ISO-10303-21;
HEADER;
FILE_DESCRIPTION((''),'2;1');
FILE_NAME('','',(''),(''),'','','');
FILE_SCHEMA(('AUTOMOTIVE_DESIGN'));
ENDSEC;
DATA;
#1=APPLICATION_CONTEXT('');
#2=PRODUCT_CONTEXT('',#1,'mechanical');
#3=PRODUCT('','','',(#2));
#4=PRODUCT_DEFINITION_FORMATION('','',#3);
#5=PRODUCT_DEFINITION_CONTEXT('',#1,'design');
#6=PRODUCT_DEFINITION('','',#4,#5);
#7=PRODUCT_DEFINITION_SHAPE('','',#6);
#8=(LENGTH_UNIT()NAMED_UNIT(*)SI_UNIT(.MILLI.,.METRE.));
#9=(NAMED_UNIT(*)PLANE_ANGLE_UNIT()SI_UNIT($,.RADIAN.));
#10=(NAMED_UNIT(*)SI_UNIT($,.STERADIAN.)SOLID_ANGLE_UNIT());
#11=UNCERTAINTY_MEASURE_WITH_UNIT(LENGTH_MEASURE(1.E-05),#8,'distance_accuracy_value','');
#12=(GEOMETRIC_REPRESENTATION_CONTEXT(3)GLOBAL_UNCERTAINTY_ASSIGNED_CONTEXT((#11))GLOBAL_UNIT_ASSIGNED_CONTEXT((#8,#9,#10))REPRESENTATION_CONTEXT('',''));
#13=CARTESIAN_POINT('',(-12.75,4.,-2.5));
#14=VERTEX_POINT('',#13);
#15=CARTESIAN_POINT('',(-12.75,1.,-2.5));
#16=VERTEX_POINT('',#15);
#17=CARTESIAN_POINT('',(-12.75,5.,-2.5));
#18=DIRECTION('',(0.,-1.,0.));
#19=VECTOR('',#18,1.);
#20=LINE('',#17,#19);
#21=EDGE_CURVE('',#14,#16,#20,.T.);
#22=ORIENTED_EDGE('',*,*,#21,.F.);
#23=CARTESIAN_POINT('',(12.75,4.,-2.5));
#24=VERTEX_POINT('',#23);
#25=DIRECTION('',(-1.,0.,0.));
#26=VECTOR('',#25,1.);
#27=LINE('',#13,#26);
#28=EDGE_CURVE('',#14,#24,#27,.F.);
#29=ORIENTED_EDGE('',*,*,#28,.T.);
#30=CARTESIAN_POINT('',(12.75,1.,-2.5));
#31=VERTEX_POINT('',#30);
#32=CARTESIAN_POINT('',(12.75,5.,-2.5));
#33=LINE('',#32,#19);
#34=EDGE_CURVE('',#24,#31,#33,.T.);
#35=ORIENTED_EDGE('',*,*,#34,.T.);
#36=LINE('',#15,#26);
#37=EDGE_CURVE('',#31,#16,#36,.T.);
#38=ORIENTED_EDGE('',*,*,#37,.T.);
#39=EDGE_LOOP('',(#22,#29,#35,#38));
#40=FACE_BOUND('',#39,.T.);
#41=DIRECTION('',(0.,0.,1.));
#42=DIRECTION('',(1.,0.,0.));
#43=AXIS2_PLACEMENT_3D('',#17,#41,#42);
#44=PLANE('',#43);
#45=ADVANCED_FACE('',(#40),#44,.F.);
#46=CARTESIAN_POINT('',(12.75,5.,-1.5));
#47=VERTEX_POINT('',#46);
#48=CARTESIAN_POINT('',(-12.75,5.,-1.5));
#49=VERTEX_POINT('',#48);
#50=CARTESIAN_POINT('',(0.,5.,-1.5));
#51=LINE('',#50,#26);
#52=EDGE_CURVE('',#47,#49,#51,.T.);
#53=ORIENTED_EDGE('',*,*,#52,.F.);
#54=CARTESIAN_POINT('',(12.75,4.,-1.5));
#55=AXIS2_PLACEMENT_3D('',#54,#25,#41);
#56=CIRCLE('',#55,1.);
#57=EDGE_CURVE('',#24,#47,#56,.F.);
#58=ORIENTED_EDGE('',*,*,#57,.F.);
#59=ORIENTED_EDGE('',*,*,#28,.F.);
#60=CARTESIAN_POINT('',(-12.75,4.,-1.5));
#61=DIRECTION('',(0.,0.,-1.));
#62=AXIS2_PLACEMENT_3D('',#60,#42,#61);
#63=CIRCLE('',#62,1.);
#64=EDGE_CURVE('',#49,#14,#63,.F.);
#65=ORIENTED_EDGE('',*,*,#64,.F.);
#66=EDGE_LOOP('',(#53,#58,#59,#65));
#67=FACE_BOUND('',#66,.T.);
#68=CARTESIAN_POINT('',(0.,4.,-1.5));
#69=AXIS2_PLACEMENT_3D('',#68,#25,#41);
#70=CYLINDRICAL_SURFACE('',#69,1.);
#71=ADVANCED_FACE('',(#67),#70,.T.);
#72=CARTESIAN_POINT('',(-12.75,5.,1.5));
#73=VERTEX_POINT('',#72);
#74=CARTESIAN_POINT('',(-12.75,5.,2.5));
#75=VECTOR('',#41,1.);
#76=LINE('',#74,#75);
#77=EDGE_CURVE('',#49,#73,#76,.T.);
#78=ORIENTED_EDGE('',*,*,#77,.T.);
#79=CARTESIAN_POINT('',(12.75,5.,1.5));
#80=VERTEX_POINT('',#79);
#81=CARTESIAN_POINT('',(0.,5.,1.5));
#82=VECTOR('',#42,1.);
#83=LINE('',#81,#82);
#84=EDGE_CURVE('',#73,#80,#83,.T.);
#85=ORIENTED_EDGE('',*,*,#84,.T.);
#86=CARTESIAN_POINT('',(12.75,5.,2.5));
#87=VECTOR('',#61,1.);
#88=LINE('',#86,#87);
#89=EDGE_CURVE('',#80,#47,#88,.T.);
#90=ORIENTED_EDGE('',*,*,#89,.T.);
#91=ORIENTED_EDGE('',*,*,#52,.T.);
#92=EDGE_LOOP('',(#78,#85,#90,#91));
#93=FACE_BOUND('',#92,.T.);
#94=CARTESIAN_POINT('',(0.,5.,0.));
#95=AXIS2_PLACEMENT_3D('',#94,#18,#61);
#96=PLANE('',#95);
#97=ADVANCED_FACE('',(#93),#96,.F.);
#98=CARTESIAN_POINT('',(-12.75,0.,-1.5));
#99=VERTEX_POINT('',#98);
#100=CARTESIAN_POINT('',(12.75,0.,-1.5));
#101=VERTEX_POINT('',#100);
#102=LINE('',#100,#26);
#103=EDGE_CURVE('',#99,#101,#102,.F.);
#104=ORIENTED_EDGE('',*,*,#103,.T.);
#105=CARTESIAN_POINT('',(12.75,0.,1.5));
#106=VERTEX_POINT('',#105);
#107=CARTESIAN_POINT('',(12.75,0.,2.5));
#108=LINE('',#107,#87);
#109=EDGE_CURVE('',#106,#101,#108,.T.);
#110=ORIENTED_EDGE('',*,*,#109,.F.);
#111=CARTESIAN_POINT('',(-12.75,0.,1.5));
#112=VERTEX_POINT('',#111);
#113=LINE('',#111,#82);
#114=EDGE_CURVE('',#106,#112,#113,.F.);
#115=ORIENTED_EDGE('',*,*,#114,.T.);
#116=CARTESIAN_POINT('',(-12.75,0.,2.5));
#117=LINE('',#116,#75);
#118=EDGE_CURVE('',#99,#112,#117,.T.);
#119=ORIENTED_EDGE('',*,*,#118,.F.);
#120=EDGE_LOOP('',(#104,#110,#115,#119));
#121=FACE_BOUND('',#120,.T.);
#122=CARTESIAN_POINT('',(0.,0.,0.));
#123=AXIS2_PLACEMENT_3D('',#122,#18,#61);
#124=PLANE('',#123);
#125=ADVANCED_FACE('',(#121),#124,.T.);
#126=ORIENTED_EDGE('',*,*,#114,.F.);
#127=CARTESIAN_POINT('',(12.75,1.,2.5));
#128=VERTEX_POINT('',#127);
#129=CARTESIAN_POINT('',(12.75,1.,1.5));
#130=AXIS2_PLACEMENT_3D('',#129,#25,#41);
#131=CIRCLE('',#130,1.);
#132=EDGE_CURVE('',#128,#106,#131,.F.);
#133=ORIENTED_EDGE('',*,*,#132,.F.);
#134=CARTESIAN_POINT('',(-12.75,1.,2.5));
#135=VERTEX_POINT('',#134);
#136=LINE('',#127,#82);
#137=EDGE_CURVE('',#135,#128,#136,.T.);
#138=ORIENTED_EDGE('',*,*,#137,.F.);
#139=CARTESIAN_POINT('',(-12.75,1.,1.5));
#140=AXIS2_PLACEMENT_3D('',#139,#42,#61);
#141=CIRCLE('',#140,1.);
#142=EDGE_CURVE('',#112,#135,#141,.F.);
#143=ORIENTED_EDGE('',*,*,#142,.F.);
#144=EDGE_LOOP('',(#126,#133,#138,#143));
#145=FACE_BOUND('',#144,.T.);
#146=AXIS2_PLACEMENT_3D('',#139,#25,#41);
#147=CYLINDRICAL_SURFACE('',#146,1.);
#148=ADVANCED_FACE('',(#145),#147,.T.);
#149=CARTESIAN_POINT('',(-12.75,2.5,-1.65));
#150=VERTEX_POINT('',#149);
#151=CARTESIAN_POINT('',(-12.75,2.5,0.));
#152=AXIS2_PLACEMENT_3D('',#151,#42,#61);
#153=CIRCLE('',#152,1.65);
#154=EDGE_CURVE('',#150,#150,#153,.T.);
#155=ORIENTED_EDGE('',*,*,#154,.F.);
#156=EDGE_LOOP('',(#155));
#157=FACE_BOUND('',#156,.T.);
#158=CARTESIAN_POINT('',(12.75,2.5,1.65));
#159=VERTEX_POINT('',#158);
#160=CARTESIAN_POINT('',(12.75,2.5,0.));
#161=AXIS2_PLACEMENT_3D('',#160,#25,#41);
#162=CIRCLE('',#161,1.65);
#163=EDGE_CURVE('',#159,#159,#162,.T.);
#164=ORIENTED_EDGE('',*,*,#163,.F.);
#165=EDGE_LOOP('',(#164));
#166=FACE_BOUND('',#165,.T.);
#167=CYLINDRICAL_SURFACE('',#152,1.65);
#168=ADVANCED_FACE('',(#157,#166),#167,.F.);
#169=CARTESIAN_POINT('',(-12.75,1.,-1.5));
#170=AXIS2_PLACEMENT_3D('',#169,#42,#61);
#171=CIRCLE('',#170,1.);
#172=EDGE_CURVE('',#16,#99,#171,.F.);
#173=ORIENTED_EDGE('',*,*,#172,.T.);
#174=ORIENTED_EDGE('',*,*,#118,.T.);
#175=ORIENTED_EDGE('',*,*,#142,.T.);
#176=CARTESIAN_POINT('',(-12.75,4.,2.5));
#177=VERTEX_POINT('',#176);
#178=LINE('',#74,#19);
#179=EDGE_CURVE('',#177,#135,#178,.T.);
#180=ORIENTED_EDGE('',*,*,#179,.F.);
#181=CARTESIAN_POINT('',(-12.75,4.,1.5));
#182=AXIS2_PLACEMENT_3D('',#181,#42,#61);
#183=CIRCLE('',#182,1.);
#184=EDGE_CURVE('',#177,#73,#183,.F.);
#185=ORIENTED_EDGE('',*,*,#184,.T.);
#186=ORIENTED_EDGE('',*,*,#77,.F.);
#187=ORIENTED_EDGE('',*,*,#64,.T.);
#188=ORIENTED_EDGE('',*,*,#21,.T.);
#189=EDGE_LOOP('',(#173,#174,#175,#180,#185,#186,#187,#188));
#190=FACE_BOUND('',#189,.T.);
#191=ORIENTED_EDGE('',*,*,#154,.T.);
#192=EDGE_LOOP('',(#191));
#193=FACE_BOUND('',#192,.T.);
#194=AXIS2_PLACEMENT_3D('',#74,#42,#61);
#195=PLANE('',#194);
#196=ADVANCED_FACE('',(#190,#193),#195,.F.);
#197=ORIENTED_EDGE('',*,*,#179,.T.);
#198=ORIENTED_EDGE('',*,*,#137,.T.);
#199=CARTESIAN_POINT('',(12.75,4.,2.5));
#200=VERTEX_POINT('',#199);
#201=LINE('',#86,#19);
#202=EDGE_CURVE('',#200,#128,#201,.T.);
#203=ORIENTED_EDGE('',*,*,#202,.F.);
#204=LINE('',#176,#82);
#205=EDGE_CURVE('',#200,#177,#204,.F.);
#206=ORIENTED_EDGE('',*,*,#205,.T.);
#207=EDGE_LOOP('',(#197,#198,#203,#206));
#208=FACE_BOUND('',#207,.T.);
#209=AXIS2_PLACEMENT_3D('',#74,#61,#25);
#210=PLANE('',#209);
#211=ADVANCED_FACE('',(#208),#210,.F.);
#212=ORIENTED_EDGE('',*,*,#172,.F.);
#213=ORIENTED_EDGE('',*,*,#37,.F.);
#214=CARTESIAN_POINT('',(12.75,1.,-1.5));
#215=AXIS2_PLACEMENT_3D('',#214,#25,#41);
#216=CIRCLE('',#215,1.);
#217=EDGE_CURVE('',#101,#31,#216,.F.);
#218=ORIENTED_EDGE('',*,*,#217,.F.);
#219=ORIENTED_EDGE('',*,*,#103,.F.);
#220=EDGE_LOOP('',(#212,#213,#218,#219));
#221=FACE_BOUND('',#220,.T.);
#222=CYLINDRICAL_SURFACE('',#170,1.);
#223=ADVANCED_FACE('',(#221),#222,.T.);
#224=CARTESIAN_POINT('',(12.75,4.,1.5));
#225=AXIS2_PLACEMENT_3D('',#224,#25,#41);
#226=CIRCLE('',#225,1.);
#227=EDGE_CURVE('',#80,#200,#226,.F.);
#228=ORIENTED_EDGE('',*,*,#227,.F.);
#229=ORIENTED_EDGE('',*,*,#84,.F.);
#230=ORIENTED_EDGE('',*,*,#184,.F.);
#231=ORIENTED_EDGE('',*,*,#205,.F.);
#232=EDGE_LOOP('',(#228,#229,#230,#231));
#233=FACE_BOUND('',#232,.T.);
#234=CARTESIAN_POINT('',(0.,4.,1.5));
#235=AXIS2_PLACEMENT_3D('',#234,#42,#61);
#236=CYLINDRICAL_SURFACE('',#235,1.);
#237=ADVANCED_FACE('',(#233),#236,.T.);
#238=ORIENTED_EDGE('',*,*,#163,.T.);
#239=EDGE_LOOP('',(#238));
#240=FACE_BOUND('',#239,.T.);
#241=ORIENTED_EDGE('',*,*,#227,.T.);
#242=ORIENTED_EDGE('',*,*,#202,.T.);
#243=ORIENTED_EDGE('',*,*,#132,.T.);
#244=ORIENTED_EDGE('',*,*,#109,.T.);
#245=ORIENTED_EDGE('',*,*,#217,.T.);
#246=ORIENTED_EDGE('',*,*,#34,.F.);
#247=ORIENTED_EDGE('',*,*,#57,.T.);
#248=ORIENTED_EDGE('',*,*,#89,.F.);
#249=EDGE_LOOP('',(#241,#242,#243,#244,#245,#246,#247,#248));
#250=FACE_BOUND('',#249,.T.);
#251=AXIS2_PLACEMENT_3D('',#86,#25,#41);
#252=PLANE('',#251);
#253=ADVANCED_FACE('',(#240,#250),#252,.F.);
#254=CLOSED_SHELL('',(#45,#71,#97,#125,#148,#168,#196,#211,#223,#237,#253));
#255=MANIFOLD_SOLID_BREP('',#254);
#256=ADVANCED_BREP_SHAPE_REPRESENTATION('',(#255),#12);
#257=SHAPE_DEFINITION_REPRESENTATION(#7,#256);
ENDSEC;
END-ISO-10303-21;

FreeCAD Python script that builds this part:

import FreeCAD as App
import Part
import Sketcher
from FreeCAD import Vector
Q = App.Units.Quantity


def edges_at(feature, points):
    """Names of the edges that pass closest to the given points."""
    edges = feature.Shape.Edges
    near = lambda p: min(range(len(edges)), key=lambda i: edges[i].distToShape(Part.Vertex(*p))[0])
    return sorted({f"Edge{near(p) + 1}" for p in points})

doc = App.newDocument("Part")
params = doc.addObject("Spreadsheet::Sheet", "Params")
for row, (alias, value) in enumerate([
    ("sketch1_height", "5 mm"),
    ("sketch1_width", "25.5 mm"),
    ("pad1_length", "5 mm"),
    ("sketch2_diameter", "3.3 mm"),
    ("fillet_radius", "1 mm"),
], start=1):
    params.set(f"A{row}", alias)
    params.set(f"B{row}", "=" + value)
    params.setAlias(f"B{row}", alias)

body = doc.addObject("PartDesign::Body", "Body")

# Sketch on XZ plane
sketch1 = doc.addObject("Sketcher::SketchObject", "Sketch")
body.addObject(sketch1)
sketch1.AttachmentSupport = (doc.XZ_Plane, [""])
sketch1.MapMode = "FlatFace"
sketch1.addGeometry([
    Part.LineSegment(Vector(-13, -2, 0), Vector(-13, 2, 0)),
    Part.LineSegment(Vector(-13, 2, 0), Vector(13, 2, 0)),
    Part.LineSegment(Vector(13, 2, 0), Vector(13, -2, 0)),
    Part.LineSegment(Vector(13, -2, 0), Vector(-13, -2, 0)),
], False)
sketch1.addConstraint([
    Sketcher.Constraint("Coincident", 0, 2, 1, 1),
    Sketcher.Constraint("Coincident", 1, 2, 2, 1),
    Sketcher.Constraint("Coincident", 2, 2, 3, 1),
    Sketcher.Constraint("Coincident", 3, 2, 0, 1),
    Sketcher.Constraint("Vertical", 0),
    Sketcher.Constraint("Horizontal", 1),
    Sketcher.Constraint("Vertical", 2),
    Sketcher.Constraint("Horizontal", 3),
    Sketcher.Constraint("Symmetric", 0, 2, 2, 2, -1, 1),
    Sketcher.Constraint("DistanceY", 0, 1, 0, 2, Q("5 mm")),
    Sketcher.Constraint("DistanceX", 1, 1, 1, 2, Q("25.5 mm")),
])
sketch1.setExpression("Constraints[9]", "Params.sketch1_height")
sketch1.setExpression("Constraints[10]", "Params.sketch1_width")
pad1 = doc.addObject("PartDesign::Pad", "Pad")
body.addObject(pad1)
pad1.Profile = sketch1
pad1.setExpression("Length", "Params.pad1_length")
pad1.Reversed = True

# Sketch on YZ plane
sketch2 = doc.addObject("Sketcher::SketchObject", "Sketch001")
body.addObject(sketch2)
sketch2.AttachmentSupport = (doc.YZ_Plane, [""])
sketch2.MapMode = "FlatFace"
sketch2.AttachmentOffset = App.Placement(Vector(0, 0, 12.75), App.Rotation())
sketch2.addGeometry(Part.Circle(Vector(2.5, 0, 0), Vector(0, 0, 1), 1.6), False)
sketch2.addConstraint([
    Sketcher.Constraint("PointOnObject", 0, 3, -1),
    Sketcher.Constraint("Diameter", 0, Q("3.3 mm")),
    Sketcher.Constraint("DistanceX", -1, 1, 0, 3, Q("2.5 mm")),
])
sketch2.setExpression("Constraints[1]", "Params.sketch2_diameter")
pocket1 = doc.addObject("PartDesign::Pocket", "Pocket")
body.addObject(pocket1)
pocket1.Profile = sketch2
pocket1.Type = "ThroughAll"
pocket1.Midplane = True
doc.recompute()

fillet = doc.addObject("PartDesign::Fillet", "Fillet")
body.addObject(fillet)
fillet.Base = (pocket1, edges_at(pocket1, [
    (0, 5, 2.5),
    (0, 0, 2.5),
    (0, 0, -2.5),
    (0, 5, -2.5),
]))
fillet.setExpression("Radius", "Params.fillet_radius")

doc.recompute()
